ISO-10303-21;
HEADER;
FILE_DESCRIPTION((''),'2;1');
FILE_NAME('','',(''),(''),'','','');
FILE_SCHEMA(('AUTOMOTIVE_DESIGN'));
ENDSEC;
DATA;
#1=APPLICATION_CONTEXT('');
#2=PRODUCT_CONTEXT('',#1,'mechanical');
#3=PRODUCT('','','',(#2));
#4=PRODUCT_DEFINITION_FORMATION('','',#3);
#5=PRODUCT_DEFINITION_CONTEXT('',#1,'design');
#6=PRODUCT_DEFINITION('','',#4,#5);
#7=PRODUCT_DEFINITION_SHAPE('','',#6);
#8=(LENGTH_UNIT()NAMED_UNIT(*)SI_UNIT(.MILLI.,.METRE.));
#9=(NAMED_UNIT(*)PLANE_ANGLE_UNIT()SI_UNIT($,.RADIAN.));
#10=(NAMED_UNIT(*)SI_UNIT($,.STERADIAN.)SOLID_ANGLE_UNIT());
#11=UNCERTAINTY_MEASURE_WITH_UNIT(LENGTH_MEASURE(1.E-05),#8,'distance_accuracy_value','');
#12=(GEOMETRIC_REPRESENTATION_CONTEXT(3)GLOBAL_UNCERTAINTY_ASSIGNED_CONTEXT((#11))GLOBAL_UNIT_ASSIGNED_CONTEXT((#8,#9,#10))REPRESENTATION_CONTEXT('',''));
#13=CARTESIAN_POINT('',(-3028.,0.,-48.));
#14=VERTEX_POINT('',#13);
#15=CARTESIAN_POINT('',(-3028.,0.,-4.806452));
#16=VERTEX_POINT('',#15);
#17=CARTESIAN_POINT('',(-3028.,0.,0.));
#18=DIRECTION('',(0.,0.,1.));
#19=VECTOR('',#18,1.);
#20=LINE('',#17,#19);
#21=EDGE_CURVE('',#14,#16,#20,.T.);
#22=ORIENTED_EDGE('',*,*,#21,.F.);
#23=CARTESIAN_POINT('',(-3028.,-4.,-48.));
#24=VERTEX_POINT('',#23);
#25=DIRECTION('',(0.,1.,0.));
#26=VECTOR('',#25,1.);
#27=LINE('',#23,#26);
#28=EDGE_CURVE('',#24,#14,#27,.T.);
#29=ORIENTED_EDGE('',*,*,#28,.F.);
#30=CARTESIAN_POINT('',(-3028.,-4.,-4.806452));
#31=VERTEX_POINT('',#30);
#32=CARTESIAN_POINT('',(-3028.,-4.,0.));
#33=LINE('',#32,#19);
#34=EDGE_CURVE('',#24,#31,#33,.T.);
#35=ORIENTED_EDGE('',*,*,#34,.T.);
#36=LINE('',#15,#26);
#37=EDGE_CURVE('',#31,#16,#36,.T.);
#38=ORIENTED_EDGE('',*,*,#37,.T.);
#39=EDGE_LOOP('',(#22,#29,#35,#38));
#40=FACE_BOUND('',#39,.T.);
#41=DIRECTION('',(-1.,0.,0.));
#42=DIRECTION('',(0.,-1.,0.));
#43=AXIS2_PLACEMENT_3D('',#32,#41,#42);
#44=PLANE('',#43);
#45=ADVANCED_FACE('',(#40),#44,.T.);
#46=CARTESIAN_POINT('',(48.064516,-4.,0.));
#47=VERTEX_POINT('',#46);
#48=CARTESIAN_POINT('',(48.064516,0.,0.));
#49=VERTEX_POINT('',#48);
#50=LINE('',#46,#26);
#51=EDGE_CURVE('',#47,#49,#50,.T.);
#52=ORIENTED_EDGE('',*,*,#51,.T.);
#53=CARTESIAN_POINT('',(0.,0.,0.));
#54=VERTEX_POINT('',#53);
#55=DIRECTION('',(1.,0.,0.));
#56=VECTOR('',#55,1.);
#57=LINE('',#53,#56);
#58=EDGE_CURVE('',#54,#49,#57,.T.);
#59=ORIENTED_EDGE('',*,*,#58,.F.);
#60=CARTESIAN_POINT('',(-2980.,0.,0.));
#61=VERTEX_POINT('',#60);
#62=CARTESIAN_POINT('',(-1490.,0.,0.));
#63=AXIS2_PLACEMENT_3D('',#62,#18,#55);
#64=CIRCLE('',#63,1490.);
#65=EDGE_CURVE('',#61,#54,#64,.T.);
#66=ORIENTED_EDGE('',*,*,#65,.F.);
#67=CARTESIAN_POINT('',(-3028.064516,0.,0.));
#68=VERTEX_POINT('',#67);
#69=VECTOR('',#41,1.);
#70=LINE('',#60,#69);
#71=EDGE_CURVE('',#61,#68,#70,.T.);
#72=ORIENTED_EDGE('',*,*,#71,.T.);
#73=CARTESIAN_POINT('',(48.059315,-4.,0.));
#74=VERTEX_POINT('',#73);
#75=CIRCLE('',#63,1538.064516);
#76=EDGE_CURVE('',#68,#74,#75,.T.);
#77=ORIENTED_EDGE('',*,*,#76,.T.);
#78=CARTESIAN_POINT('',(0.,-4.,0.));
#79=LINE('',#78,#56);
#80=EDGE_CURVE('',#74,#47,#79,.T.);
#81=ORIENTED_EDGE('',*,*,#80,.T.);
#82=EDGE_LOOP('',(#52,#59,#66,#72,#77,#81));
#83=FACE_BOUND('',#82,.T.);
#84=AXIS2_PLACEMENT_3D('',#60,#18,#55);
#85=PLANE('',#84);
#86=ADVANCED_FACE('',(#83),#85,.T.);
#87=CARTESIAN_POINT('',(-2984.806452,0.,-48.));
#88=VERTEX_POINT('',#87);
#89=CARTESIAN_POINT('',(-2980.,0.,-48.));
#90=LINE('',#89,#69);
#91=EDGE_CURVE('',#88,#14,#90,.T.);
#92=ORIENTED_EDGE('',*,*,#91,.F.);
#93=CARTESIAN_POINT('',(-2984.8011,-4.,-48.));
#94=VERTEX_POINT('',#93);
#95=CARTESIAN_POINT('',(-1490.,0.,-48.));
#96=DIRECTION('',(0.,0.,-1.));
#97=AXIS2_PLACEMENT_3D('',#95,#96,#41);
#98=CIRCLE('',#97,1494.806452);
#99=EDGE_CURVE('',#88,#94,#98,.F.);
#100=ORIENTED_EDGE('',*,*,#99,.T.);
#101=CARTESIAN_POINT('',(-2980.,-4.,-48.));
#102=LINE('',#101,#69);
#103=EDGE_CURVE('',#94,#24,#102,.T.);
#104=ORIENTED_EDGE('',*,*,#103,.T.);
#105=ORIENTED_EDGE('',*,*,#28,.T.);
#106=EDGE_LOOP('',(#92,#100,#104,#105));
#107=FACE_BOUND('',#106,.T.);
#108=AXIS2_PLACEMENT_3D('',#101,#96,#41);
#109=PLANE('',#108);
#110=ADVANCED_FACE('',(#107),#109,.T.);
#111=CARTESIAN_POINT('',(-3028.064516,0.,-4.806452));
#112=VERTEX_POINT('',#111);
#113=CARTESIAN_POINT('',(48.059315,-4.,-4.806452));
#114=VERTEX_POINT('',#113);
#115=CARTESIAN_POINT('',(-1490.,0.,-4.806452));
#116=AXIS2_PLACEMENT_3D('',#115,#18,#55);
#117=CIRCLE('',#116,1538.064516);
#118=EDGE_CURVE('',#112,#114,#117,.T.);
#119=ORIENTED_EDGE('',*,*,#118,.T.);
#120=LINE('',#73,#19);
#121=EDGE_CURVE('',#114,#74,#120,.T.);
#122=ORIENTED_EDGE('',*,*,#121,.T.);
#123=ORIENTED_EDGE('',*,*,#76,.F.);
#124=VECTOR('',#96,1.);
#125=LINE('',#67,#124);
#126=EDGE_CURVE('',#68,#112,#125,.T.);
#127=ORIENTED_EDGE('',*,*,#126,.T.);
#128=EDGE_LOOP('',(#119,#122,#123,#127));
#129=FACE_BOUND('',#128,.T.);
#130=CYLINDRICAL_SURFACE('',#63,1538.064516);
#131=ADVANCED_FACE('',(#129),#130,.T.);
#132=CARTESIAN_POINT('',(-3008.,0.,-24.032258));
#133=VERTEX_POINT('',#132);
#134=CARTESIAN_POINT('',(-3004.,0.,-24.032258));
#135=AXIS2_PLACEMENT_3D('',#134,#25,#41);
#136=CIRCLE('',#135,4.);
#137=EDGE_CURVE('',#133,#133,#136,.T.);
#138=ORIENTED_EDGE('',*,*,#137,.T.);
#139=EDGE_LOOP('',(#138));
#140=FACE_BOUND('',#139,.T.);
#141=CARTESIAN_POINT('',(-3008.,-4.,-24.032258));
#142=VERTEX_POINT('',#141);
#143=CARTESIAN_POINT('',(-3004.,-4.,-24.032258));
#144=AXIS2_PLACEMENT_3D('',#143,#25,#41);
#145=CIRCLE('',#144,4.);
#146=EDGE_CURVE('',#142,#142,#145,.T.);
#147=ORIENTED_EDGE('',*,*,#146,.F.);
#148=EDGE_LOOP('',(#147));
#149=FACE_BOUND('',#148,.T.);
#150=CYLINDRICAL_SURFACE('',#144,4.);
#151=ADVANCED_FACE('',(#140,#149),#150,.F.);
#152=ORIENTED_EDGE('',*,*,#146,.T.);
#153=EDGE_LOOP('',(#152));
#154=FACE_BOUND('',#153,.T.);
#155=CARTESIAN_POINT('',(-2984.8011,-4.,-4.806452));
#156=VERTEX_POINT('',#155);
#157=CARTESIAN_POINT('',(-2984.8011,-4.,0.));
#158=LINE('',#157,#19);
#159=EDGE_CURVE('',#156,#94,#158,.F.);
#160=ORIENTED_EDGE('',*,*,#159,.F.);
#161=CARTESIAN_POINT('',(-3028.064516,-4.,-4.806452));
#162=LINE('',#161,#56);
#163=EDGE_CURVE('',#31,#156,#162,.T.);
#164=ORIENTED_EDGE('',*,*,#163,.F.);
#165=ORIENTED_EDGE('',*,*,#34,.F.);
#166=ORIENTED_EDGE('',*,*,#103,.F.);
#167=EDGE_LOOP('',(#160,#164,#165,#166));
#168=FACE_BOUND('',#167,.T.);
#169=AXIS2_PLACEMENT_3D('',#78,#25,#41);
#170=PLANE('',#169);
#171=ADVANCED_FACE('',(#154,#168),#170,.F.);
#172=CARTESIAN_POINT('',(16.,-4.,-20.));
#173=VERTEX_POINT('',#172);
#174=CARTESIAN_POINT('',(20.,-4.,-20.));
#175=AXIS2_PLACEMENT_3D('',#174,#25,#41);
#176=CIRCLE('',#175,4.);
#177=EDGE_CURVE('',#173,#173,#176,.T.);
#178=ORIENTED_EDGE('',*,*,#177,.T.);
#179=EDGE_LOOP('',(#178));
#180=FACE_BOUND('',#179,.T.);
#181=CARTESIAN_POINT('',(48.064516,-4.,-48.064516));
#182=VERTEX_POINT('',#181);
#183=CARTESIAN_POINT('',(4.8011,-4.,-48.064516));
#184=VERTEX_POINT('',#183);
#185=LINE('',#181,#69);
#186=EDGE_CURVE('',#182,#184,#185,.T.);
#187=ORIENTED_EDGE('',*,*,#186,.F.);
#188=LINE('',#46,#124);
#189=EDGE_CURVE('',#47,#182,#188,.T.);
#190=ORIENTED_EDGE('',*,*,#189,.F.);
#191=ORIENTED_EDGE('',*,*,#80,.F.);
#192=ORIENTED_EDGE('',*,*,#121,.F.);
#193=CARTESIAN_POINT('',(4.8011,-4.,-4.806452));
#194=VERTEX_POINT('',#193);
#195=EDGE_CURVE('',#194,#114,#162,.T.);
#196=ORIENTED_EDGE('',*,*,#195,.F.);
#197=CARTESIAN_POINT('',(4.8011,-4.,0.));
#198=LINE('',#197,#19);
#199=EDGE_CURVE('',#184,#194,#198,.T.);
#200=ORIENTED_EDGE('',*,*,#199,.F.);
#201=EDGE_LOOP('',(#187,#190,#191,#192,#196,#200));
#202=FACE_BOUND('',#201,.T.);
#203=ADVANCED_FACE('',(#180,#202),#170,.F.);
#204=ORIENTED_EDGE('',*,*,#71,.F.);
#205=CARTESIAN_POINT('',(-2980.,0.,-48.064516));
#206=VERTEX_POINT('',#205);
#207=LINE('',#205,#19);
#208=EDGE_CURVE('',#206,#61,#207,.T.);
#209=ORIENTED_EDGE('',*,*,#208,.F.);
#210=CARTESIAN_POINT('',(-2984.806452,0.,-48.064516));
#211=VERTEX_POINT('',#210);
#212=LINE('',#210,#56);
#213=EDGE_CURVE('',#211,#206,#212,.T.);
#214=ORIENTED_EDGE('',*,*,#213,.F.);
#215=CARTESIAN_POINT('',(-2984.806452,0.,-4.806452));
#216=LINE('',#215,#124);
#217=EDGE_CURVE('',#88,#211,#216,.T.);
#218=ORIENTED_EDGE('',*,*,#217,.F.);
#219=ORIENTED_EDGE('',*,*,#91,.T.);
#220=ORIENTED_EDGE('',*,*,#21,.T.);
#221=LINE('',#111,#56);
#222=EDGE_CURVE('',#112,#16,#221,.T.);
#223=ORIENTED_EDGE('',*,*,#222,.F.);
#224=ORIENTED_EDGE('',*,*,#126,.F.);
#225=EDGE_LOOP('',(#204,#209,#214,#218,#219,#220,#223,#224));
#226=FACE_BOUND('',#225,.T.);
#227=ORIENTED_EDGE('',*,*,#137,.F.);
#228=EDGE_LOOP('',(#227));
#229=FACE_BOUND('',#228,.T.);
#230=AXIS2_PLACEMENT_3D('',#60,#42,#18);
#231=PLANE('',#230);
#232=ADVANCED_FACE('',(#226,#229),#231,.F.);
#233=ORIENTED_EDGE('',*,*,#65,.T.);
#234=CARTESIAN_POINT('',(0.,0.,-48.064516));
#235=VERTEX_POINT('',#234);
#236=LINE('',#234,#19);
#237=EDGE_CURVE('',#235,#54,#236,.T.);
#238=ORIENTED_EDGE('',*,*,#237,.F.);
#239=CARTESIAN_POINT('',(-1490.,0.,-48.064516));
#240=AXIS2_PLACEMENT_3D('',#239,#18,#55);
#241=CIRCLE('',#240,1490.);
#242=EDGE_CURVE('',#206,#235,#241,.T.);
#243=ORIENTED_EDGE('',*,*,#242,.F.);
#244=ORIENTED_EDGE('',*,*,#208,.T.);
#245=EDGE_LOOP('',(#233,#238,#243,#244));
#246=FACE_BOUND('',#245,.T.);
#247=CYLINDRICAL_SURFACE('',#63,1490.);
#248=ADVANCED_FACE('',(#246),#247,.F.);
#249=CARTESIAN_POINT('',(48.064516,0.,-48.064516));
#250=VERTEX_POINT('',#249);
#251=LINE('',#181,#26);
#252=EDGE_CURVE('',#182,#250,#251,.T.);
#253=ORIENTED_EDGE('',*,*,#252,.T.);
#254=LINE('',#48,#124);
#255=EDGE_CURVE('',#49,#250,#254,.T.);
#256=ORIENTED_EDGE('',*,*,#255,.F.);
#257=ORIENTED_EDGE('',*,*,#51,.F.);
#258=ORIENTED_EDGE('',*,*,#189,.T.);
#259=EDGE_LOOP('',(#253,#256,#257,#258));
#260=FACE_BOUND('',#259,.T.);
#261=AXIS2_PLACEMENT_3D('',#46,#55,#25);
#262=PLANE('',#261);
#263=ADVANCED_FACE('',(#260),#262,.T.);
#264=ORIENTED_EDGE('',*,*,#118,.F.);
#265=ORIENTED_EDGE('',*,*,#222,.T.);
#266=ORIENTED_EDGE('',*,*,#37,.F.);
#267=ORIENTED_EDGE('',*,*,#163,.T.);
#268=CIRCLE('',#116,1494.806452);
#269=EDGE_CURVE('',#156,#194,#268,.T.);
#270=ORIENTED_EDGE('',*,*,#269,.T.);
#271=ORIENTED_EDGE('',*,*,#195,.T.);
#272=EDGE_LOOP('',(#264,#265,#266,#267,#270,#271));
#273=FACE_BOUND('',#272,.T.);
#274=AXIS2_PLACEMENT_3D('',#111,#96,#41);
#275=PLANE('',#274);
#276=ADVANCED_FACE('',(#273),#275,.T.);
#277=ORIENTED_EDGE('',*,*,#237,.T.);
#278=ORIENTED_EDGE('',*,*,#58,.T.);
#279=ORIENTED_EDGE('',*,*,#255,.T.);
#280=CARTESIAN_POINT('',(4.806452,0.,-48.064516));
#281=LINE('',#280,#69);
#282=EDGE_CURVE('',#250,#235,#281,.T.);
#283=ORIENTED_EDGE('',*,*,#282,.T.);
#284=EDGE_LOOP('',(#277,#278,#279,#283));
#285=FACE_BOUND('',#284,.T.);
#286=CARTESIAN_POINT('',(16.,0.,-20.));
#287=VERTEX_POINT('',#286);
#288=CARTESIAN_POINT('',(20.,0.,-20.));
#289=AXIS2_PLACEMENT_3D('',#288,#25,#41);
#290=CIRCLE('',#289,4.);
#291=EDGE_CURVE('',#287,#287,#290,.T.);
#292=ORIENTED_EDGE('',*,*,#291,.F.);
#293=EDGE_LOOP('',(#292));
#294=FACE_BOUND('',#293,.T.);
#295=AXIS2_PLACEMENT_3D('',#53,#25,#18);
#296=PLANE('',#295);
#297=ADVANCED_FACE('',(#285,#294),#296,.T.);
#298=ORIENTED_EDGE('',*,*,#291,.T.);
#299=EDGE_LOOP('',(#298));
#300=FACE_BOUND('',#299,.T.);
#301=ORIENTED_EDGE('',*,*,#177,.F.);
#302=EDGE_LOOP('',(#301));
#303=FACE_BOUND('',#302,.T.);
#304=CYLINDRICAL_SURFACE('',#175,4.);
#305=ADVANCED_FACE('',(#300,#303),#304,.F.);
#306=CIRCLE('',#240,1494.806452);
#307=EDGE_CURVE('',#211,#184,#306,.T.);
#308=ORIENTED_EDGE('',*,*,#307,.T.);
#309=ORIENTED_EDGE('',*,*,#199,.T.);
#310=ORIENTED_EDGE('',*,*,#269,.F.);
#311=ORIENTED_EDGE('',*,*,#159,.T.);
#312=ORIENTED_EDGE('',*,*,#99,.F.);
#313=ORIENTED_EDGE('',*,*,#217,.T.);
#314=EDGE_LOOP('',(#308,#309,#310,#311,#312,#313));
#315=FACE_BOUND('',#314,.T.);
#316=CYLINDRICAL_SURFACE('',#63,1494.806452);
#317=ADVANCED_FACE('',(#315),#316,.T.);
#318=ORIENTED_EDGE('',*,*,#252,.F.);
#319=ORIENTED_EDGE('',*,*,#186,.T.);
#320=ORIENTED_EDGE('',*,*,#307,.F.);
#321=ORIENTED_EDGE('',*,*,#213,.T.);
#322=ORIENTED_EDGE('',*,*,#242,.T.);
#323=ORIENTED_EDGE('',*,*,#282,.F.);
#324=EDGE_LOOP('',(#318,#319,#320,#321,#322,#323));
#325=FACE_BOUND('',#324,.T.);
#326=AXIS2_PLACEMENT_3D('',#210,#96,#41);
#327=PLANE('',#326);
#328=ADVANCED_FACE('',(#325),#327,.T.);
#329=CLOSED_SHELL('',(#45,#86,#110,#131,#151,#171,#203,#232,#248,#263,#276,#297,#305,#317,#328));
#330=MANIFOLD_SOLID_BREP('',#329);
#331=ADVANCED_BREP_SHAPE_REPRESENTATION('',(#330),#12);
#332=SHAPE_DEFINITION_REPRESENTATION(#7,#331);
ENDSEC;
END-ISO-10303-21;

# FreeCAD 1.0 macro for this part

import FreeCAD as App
import Part
import Sketcher

V = App.Vector
Q = App.Units.Quantity


def add_polygon(sketch, points):
    """Adds a closed chain of lines whose ends are joined by coincident constraints."""
    first, n = sketch.GeometryCount, len(points)
    for a, b in zip(points, points[1:] + points[:1]):
        sketch.addGeometry(Part.LineSegment(App.Vector(*a, 0), App.Vector(*b, 0)), False)
    for i in range(n):
        sketch.addConstraint(Sketcher.Constraint("Coincident", first + i, 2, first + (i + 1) % n, 1))

doc = App.newDocument("Part")
params = doc.addObject("Spreadsheet::Sheet", "Params")
for row, (alias, value) in enumerate([
    ("revolution_angle", "180 deg"),
    ("sketch2_diameter", "8 mm"),
    ("sketch2_width", "48 mm"),
    ("pad1_length", "4 mm"),
], start=1):
    params.set(f"A{row}", alias)
    params.set(f"B{row}", "=" + value)
    params.setAlias(f"B{row}", alias)

body = doc.addObject("PartDesign::Body", "Body")

# Sketch on XZ plane
sketch1 = doc.addObject("Sketcher::SketchObject", "Sketch")
body.addObject(sketch1)
sketch1.AttachmentSupport = (doc.XZ_Plane, [""])
sketch1.MapMode = "FlatFace"
add_polygon(sketch1, [(0, 0), (48.064516, 0), (48.064516, -4.806452), (4.806452, -4.806452), (4.806452, -48.064516), (0, -48.064516)])  # lines 0-5
sketch1.addGeometry(Part.LineSegment(V(-1490, 0, 0), V(-1490, -48.064516, 0)), True)  # axis
sketch1.addConstraint([
    Sketcher.Constraint("Horizontal", 0),
    Sketcher.Constraint("Vertical", 1),
    Sketcher.Constraint("Horizontal", 2),
    Sketcher.Constraint("Vertical", 3),
    Sketcher.Constraint("Horizontal", 4),
    Sketcher.Constraint("Vertical", 5),
    Sketcher.Constraint("Vertical", 6),
    Sketcher.Constraint("Coincident", 5, 2, -1, 1),
    Sketcher.Constraint("PointOnObject", 6, 1, -1),
    Sketcher.Constraint("Horizontal", 4, 2, 6, 2),
    Sketcher.Constraint("Equal", 4, 1),
    Sketcher.Constraint("Equal", 2, 3),
    Sketcher.Constraint("DistanceX", 6, 1, -1, 1, Q("1490 mm")),
    Sketcher.Constraint("DistanceX", 4, 2, 4, 1, Q("4.806452 mm")),
    Sketcher.Constraint("DistanceX", 0, 1, 0, 2, Q("48.064516 mm")),
])
revolution = doc.addObject("PartDesign::Revolution", "Revolution")
body.addObject(revolution)
revolution.Profile = sketch1
revolution.ReferenceAxis = (sketch1, ["Axis0"])
revolution.setExpression("Angle", "Params.revolution_angle")

# Sketch on XZ plane
sketch2 = doc.addObject("Sketcher::SketchObject", "Sketch001")
body.addObject(sketch2)
sketch2.AttachmentSupport = (doc.XZ_Plane, [""])
sketch2.MapMode = "FlatFace"
add_polygon(sketch2, [(0, -48.064516), (0, 0), (48.064516, 0), (48.064516, -48.064516)])  # lines 0-3
sketch2.addGeometry(Part.Circle(V(20, -20, 0), V(0, 0, 1), 4), False)  # 4
add_polygon(sketch2, [(-3028, -48), (-3028, 0), (-2980, 0), (-2980, -48)])  # lines 5-8
sketch2.addGeometry(Part.Circle(V(-3004, -24.032258, 0), V(0, 0, 1), 4), False)  # 9
sketch2.addConstraint([
    Sketcher.Constraint("Vertical", 0),
    Sketcher.Constraint("Horizontal", 1),
    Sketcher.Constraint("Vertical", 2),
    Sketcher.Constraint("Horizontal", 3),
    Sketcher.Constraint("Vertical", 5),
    Sketcher.Constraint("Horizontal", 6),
    Sketcher.Constraint("Vertical", 7),
    Sketcher.Constraint("Horizontal", 8),
    Sketcher.Constraint("Coincident", 0, 2, -1, 1),
    Sketcher.Constraint("Equal", 4, 9),
    Sketcher.Constraint("PointOnObject", 5, 2, -1),
    Sketcher.Constraint("Equal", 3, 0),
    Sketcher.Constraint("Equal", 8, 5),
    Sketcher.Constraint("Diameter", 4, Q("8 mm")),
    Sketcher.Constraint("DistanceX", 6, 1, 6, 2, Q("48 mm")),
    Sketcher.Constraint("DistanceX", -1, 1, 4, 3, Q("20 mm")),
    Sketcher.Constraint("DistanceY", 4, 3, -1, 1, Q("20 mm")),
    Sketcher.Constraint("DistanceX", 9, 3, -1, 1, Q("3004 mm")),
    Sketcher.Constraint("DistanceX", 5, 2, -1, 1, Q("3028 mm")),
    Sketcher.Constraint("DistanceX", 1, 1, 1, 2, Q("48.064516 mm")),
    Sketcher.Constraint("DistanceY", 9, 3, -1, 1, Q("24.032258 mm")),
])
sketch2.setExpression("Constraints[21]", "Params.sketch2_diameter")
sketch2.setExpression("Constraints[22]", "Params.sketch2_width")
pad1 = doc.addObject("PartDesign::Pad", "Pad")
body.addObject(pad1)
pad1.Profile = sketch2
pad1.setExpression("Length", "Params.pad1_length")

doc.recompute()
